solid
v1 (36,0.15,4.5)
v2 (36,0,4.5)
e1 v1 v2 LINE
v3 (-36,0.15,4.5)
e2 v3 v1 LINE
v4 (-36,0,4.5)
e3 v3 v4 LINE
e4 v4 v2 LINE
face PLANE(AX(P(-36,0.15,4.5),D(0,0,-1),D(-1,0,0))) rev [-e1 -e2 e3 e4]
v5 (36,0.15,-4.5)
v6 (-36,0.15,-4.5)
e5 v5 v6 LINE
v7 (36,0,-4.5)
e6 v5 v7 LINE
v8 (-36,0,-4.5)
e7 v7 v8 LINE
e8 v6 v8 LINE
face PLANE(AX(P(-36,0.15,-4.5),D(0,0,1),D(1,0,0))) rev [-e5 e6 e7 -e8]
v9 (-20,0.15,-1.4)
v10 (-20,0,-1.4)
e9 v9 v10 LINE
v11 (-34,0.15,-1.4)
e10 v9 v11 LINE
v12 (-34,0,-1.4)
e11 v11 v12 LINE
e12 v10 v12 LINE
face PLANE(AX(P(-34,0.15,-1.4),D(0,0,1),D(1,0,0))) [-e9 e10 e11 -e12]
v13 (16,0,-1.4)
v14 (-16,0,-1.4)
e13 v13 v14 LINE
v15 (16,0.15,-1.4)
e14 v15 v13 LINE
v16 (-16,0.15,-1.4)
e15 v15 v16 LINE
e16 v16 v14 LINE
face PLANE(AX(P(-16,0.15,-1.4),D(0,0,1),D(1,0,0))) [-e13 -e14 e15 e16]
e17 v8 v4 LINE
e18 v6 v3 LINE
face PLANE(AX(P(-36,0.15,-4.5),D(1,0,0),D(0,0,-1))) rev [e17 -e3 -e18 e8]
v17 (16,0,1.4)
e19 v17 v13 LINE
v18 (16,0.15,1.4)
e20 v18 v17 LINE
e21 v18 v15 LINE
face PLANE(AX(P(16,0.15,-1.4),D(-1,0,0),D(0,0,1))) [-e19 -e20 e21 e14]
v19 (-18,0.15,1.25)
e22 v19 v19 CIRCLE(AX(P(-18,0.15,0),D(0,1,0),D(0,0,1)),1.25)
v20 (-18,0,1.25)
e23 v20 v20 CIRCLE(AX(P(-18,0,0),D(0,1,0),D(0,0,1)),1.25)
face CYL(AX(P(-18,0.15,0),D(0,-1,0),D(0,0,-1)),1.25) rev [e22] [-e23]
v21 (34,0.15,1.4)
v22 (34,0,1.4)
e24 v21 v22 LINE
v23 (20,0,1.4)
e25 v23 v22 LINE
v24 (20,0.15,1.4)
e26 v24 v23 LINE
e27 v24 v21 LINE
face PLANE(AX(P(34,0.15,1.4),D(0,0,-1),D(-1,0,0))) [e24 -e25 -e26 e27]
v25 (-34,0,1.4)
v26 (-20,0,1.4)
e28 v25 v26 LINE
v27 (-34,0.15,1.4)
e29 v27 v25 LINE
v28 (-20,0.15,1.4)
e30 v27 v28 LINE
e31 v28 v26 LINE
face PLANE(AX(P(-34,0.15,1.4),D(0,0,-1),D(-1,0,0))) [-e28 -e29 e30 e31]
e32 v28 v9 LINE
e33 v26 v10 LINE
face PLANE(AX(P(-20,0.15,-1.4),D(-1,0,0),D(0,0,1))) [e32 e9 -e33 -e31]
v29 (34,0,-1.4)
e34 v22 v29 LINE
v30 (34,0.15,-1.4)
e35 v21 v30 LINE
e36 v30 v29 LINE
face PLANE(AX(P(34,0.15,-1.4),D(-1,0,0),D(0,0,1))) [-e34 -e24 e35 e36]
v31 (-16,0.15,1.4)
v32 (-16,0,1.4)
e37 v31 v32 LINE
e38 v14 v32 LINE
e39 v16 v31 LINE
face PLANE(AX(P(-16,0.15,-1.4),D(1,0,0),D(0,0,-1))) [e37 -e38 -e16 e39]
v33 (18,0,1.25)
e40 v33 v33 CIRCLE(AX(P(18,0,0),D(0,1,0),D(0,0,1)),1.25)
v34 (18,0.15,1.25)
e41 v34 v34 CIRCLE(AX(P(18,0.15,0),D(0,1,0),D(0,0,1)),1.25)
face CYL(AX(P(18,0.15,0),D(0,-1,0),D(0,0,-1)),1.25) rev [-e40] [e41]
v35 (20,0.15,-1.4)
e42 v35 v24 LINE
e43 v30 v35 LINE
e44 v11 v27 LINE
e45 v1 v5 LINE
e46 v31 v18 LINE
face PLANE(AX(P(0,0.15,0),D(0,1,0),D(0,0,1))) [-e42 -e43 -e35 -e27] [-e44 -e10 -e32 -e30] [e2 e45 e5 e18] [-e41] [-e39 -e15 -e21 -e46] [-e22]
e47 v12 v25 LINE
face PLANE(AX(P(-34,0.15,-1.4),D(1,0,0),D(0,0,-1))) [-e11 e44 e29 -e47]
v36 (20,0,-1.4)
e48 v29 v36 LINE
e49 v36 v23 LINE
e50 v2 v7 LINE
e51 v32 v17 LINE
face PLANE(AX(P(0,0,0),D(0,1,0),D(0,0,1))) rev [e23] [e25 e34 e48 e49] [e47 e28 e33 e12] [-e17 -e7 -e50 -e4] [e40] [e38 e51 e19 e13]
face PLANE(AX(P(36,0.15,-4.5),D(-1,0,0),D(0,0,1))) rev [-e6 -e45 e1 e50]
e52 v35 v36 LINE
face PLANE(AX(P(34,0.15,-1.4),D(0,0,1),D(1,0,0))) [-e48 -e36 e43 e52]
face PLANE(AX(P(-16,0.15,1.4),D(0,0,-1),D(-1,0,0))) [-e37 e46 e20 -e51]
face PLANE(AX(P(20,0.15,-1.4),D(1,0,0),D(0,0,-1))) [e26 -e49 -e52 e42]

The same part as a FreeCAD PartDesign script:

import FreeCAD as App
import Part
import Sketcher
from FreeCAD import Vector
Q = App.Units.Quantity

doc = App.newDocument("Part")
body = doc.addObject("PartDesign::Body", "Body")

# Sketch on XZ plane
sketch1 = body.newObject("Sketcher::SketchObject", "Sketch")
sketch1.AttachmentSupport = (doc.getObject("XZ_Plane"), [""])
sketch1.MapMode = "FlatFace"
sketch1.addGeometry([
    Part.LineSegment(Vector(-36, -4.5, 0), Vector(-36, 4.5, 0)),  # 0
    Part.LineSegment(Vector(-36, 4.5, 0), Vector(36, 4.5, 0)),  # 1
    Part.LineSegment(Vector(36, 4.5, 0), Vector(36, -4.5, 0)),  # 2
    Part.LineSegment(Vector(36, -4.5, 0), Vector(-36, -4.5, 0)),  # 3
    Part.LineSegment(Vector(-20, 1.4, 0), Vector(-34, 1.4, 0)),  # 4
    Part.LineSegment(Vector(-34, 1.4, 0), Vector(-34, -1.4, 0)),  # 5
    Part.LineSegment(Vector(-34, -1.4, 0), Vector(-20, -1.4, 0)),  # 6
    Part.LineSegment(Vector(-20, -1.4, 0), Vector(-20, 1.4, 0)),  # 7
    Part.Circle(Vector(-18, 0, 0), Vector(0, 0, 1), 1.2),  # 8
    Part.LineSegment(Vector(16, 1.4, 0), Vector(-16, 1.4, 0)),  # 9
    Part.LineSegment(Vector(-16, 1.4, 0), Vector(-16, -1.4, 0)),  # 10
    Part.LineSegment(Vector(-16, -1.4, 0), Vector(16, -1.4, 0)),  # 11
    Part.LineSegment(Vector(16, -1.4, 0), Vector(16, 1.4, 0)),  # 12
    Part.Circle(Vector(18, 0, 0), Vector(0, 0, 1), 1.2),  # 13
    Part.LineSegment(Vector(34, 1.4, 0), Vector(20, 1.4, 0)),  # 14
    Part.LineSegment(Vector(20, 1.4, 0), Vector(20, -1.4, 0)),  # 15
    Part.LineSegment(Vector(20, -1.4, 0), Vector(34, -1.4, 0)),  # 16
    Part.LineSegment(Vector(34, -1.4, 0), Vector(34, 1.4, 0)),  # 17
], False)
sketch1.addConstraint([
    Sketcher.Constraint("Coincident", 0, 2, 1, 1),
    Sketcher.Constraint("Coincident", 1, 2, 2, 1),
    Sketcher.Constraint("Coincident", 2, 2, 3, 1),
    Sketcher.Constraint("Coincident", 3, 2, 0, 1),
    Sketcher.Constraint("Coincident", 4, 2, 5, 1),
    Sketcher.Constraint("Coincident", 5, 2, 6, 1),
    Sketcher.Constraint("Coincident", 6, 2, 7, 1),
    Sketcher.Constraint("Coincident", 7, 2, 4, 1),
    Sketcher.Constraint("Coincident", 9, 2, 10, 1),
    Sketcher.Constraint("Coincident", 10, 2, 11, 1),
    Sketcher.Constraint("Coincident", 11, 2, 12, 1),
    Sketcher.Constraint("Coincident", 12, 2, 9, 1),
    Sketcher.Constraint("Coincident", 14, 2, 15, 1),
    Sketcher.Constraint("Coincident", 15, 2, 16, 1),
    Sketcher.Constraint("Coincident", 16, 2, 17, 1),
    Sketcher.Constraint("Coincident", 17, 2, 14, 1),
    Sketcher.Constraint("Vertical", 0),
    Sketcher.Constraint("Horizontal", 1),
    Sketcher.Constraint("Vertical", 2),
    Sketcher.Constraint("Horizontal", 3),
    Sketcher.Constraint("Horizontal", 4),
    Sketcher.Constraint("Vertical", 5),
    Sketcher.Constraint("Horizontal", 6),
    Sketcher.Constraint("Vertical", 7),
    Sketcher.Constraint("Horizontal", 9),
    Sketcher.Constraint("Vertical", 10),
    Sketcher.Constraint("Horizontal", 11),
    Sketcher.Constraint("Vertical", 12),
    Sketcher.Constraint("Horizontal", 14),
    Sketcher.Constraint("Vertical", 15),
    Sketcher.Constraint("Horizontal", 16),
    Sketcher.Constraint("Vertical", 17),
    Sketcher.Constraint("Equal", 8, 13),
    Sketcher.Constraint("Symmetric", 8, 3, 13, 3, -1, 1),
    Sketcher.Constraint("Symmetric", 0, 2, 2, 2, -1, 1),
    Sketcher.Constraint("Symmetric", 9, 2, 11, 2, -1, 1),
    Sketcher.Constraint("Symmetric", 6, 2, 14, 2, -1, 1),
    Sketcher.Constraint("Symmetric", 4, 2, 16, 2, -1, 1),
    Sketcher.Constraint("PointOnObject", 8, 3, -1),
    Sketcher.Constraint("Horizontal", 7, 2, 9, 2),
    Sketcher.Constraint("Horizontal", 6, 2, 10, 2),
    Sketcher.Constraint("Diameter", 8, Q("2.5 mm")),
    Sketcher.Constraint("DistanceX", 1, 1, 1, 2, Q("72 mm")),
    Sketcher.Constraint("DistanceX", 4, 2, 4, 1, Q("14 mm")),
    Sketcher.Constraint("DistanceX", 9, 2, 9, 1, Q("32 mm")),
    Sketcher.Constraint("DistanceY", 0, 1, 0, 2, Q("9 mm")),
    Sketcher.Constraint("DistanceY", 5, 2, 5, 1, Q("2.8 mm")),
    Sketcher.Constraint("DistanceX", 8, 3, -1, 1, Q("18 mm")),
    Sketcher.Constraint("DistanceX", 4, 2, -1, 1, Q("34 mm")),
])
pad1 = body.newObject("PartDesign::Pad", "Pad")
pad1.Profile = sketch1
pad1.Length = 0.15
pad1.Reversed = True

doc.recompute()
